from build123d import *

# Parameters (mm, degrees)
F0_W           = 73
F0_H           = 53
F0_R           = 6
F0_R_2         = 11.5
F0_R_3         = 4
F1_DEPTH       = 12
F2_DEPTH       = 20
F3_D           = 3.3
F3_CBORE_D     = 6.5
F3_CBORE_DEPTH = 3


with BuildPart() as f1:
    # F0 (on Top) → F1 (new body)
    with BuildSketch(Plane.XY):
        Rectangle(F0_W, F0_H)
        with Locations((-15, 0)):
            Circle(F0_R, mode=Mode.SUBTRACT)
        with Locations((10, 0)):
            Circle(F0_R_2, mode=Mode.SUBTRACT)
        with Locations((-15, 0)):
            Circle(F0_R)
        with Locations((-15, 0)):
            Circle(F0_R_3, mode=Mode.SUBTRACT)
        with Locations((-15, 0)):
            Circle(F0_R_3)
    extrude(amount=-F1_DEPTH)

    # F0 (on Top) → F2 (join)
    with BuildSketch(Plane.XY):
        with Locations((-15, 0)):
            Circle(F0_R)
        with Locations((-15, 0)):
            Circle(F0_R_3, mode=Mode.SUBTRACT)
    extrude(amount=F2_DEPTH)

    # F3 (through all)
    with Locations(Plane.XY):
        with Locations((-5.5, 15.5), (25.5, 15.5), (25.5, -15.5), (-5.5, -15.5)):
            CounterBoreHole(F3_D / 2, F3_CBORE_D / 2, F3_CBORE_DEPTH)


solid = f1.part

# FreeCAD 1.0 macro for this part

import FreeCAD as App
import Part
import Sketcher


def add_polygon(sketch, points):
    """Adds a closed chain of lines whose ends are joined by coincident constraints."""
    first, n = sketch.GeometryCount, len(points)
    for a, b in zip(points, points[1:] + points[:1]):
        sketch.addGeometry(Part.LineSegment(App.Vector(*a, 0), App.Vector(*b, 0)), False)
    for i in range(n):
        sketch.addConstraint(Sketcher.Constraint("Coincident", first + i, 2, first + (i + 1) % n, 1))

doc = App.newDocument("Part")
params = doc.addObject("Spreadsheet::Sheet", "Params")
for row, (alias, value) in enumerate([
    ("sketch1_diameter", "23 mm"),
    ("sketch1_width", "73 mm"),
    ("sketch1_height", "53 mm"),
    ("pad1_length", "12 mm"),
    ("sketch2_diameter", "12 mm"),
    ("sketch2_diameter2", "8 mm"),
    ("pad2_length", "20 mm"),
    ("sketch3_diameter", "3.3 mm"),
    ("hole_diameter", "3.3 mm"),
    ("hole_cbore_diameter", "6.5 mm"),
    ("hole_cbore_depth", "3 mm"),
], start=1):
    params.set(f"A{row}", alias)
    params.set(f"B{row}", "=" + value)
    params.setAlias(f"B{row}", alias)

body = doc.addObject("PartDesign::Body", "Body")

# Sketch on XY plane
sketch1 = body.newObject("Sketcher::SketchObject", "Sketch")
sketch1.AttachmentSupport = (doc.getObject("XY_Plane"), [""])
sketch1.MapMode = "FlatFace"
add_polygon(sketch1, [(-36, 26), (-36, -26), (36, -26), (36, 26)])  # lines 0-3
sketch1.addGeometry(Part.Circle(App.Vector(10, 0, 0), App.Vector(0, 0, 1), 12), False)  # 4
sketch1.addConstraint([
    Sketcher.Constraint("Vertical", 0),
    Sketcher.Constraint("Horizontal", 1),
    Sketcher.Constraint("Vertical", 2),
    Sketcher.Constraint("Horizontal", 3),
    Sketcher.Constraint("Symmetric", 0, 2, 2, 2, -1, 1),
    Sketcher.Constraint("PointOnObject", 4, 3, -1),
    Sketcher.Constraint("Diameter", 4, 23.0),
    Sketcher.Constraint("DistanceX", 1, 1, 1, 2, 73.0),
    Sketcher.Constraint("DistanceY", 0, 2, 0, 1, 53.0),
    Sketcher.Constraint("DistanceX", -1, 1, 4, 3, 10.0),
])
sketch1.setExpression("Constraints[10]", "Params.sketch1_diameter")
sketch1.setExpression("Constraints[11]", "Params.sketch1_width")
sketch1.setExpression("Constraints[12]", "Params.sketch1_height")
pad1 = body.newObject("PartDesign::Pad", "Pad")
pad1.Profile = sketch1
pad1.setExpression("Length", "Params.pad1_length")
pad1.Reversed = True

# Sketch on XY plane
sketch2 = body.newObject("Sketcher::SketchObject", "Sketch001")
sketch2.AttachmentSupport = (doc.getObject("XY_Plane"), [""])
sketch2.MapMode = "FlatFace"
sketch2.addGeometry([
    Part.Circle(App.Vector(-15, 0, 0), App.Vector(0, 0, 1), 6),
    Part.Circle(App.Vector(-15, 0, 0), App.Vector(0, 0, 1), 4),
], False)
sketch2.addConstraint([
    Sketcher.Constraint("Coincident", 1, 3, 0, 3),
    Sketcher.Constraint("PointOnObject", 0, 3, -1),
    Sketcher.Constraint("Diameter", 0, 12.0),
    Sketcher.Constraint("Diameter", 1, 8.0),
    Sketcher.Constraint("DistanceX", 0, 3, -1, 1, 15.0),
])
sketch2.setExpression("Constraints[2]", "Params.sketch2_diameter")
sketch2.setExpression("Constraints[3]", "Params.sketch2_diameter2")
pad2 = body.newObject("PartDesign::Pad", "Pad001")
pad2.Profile = sketch2
pad2.setExpression("Length", "Params.pad2_length")

# Sketch on XY plane
sketch3 = body.newObject("Sketcher::SketchObject", "Sketch002")
sketch3.AttachmentSupport = (doc.getObject("XY_Plane"), [""])
sketch3.MapMode = "FlatFace"
sketch3.addGeometry([
    Part.Circle(App.Vector(-5.5, 15.5, 0), App.Vector(0, 0, 1), 1.6),
    Part.Circle(App.Vector(25.5, 15.5, 0), App.Vector(0, 0, 1), 1.6),
    Part.Circle(App.Vector(25.5, -15.5, 0), App.Vector(0, 0, 1), 1.6),
    Part.Circle(App.Vector(-5.5, -15.5, 0), App.Vector(0, 0, 1), 1.6),
], False)
sketch3.addConstraint([
    Sketcher.Constraint("Equal", 0, 1),
    Sketcher.Constraint("Equal", 1, 2),
    Sketcher.Constraint("Equal", 2, 3),
    Sketcher.Constraint("Symmetric", 1, 3, 2, 3, -1),
    Sketcher.Constraint("Symmetric", 0, 3, 3, 3, -1),
    Sketcher.Constraint("Horizontal", 0, 3, 1, 3),
    Sketcher.Constraint("Diameter", 0, 3.3),
    Sketcher.Constraint("DistanceX", 0, 3, 1, 3, 31.0),
    Sketcher.Constraint("DistanceY", 2, 3, 1, 3, 31.0),
    Sketcher.Constraint("DistanceX", 0, 3, -1, 1, 5.5),
])
sketch3.setExpression("Constraints[6]", "Params.sketch3_diameter")
doc.recompute()
hole = body.newObject("PartDesign::Hole", "Hole")
hole.Profile = sketch3
hole.ThreadType = "None"
hole.setExpression("Diameter", "Params.hole_diameter")
hole.DepthType = "ThroughAll"
hole.HoleCutType = "Counterbore"
hole.setExpression("HoleCutDiameter", "Params.hole_cbore_diameter")
hole.setExpression("HoleCutDepth", "Params.hole_cbore_depth")

doc.recompute()
